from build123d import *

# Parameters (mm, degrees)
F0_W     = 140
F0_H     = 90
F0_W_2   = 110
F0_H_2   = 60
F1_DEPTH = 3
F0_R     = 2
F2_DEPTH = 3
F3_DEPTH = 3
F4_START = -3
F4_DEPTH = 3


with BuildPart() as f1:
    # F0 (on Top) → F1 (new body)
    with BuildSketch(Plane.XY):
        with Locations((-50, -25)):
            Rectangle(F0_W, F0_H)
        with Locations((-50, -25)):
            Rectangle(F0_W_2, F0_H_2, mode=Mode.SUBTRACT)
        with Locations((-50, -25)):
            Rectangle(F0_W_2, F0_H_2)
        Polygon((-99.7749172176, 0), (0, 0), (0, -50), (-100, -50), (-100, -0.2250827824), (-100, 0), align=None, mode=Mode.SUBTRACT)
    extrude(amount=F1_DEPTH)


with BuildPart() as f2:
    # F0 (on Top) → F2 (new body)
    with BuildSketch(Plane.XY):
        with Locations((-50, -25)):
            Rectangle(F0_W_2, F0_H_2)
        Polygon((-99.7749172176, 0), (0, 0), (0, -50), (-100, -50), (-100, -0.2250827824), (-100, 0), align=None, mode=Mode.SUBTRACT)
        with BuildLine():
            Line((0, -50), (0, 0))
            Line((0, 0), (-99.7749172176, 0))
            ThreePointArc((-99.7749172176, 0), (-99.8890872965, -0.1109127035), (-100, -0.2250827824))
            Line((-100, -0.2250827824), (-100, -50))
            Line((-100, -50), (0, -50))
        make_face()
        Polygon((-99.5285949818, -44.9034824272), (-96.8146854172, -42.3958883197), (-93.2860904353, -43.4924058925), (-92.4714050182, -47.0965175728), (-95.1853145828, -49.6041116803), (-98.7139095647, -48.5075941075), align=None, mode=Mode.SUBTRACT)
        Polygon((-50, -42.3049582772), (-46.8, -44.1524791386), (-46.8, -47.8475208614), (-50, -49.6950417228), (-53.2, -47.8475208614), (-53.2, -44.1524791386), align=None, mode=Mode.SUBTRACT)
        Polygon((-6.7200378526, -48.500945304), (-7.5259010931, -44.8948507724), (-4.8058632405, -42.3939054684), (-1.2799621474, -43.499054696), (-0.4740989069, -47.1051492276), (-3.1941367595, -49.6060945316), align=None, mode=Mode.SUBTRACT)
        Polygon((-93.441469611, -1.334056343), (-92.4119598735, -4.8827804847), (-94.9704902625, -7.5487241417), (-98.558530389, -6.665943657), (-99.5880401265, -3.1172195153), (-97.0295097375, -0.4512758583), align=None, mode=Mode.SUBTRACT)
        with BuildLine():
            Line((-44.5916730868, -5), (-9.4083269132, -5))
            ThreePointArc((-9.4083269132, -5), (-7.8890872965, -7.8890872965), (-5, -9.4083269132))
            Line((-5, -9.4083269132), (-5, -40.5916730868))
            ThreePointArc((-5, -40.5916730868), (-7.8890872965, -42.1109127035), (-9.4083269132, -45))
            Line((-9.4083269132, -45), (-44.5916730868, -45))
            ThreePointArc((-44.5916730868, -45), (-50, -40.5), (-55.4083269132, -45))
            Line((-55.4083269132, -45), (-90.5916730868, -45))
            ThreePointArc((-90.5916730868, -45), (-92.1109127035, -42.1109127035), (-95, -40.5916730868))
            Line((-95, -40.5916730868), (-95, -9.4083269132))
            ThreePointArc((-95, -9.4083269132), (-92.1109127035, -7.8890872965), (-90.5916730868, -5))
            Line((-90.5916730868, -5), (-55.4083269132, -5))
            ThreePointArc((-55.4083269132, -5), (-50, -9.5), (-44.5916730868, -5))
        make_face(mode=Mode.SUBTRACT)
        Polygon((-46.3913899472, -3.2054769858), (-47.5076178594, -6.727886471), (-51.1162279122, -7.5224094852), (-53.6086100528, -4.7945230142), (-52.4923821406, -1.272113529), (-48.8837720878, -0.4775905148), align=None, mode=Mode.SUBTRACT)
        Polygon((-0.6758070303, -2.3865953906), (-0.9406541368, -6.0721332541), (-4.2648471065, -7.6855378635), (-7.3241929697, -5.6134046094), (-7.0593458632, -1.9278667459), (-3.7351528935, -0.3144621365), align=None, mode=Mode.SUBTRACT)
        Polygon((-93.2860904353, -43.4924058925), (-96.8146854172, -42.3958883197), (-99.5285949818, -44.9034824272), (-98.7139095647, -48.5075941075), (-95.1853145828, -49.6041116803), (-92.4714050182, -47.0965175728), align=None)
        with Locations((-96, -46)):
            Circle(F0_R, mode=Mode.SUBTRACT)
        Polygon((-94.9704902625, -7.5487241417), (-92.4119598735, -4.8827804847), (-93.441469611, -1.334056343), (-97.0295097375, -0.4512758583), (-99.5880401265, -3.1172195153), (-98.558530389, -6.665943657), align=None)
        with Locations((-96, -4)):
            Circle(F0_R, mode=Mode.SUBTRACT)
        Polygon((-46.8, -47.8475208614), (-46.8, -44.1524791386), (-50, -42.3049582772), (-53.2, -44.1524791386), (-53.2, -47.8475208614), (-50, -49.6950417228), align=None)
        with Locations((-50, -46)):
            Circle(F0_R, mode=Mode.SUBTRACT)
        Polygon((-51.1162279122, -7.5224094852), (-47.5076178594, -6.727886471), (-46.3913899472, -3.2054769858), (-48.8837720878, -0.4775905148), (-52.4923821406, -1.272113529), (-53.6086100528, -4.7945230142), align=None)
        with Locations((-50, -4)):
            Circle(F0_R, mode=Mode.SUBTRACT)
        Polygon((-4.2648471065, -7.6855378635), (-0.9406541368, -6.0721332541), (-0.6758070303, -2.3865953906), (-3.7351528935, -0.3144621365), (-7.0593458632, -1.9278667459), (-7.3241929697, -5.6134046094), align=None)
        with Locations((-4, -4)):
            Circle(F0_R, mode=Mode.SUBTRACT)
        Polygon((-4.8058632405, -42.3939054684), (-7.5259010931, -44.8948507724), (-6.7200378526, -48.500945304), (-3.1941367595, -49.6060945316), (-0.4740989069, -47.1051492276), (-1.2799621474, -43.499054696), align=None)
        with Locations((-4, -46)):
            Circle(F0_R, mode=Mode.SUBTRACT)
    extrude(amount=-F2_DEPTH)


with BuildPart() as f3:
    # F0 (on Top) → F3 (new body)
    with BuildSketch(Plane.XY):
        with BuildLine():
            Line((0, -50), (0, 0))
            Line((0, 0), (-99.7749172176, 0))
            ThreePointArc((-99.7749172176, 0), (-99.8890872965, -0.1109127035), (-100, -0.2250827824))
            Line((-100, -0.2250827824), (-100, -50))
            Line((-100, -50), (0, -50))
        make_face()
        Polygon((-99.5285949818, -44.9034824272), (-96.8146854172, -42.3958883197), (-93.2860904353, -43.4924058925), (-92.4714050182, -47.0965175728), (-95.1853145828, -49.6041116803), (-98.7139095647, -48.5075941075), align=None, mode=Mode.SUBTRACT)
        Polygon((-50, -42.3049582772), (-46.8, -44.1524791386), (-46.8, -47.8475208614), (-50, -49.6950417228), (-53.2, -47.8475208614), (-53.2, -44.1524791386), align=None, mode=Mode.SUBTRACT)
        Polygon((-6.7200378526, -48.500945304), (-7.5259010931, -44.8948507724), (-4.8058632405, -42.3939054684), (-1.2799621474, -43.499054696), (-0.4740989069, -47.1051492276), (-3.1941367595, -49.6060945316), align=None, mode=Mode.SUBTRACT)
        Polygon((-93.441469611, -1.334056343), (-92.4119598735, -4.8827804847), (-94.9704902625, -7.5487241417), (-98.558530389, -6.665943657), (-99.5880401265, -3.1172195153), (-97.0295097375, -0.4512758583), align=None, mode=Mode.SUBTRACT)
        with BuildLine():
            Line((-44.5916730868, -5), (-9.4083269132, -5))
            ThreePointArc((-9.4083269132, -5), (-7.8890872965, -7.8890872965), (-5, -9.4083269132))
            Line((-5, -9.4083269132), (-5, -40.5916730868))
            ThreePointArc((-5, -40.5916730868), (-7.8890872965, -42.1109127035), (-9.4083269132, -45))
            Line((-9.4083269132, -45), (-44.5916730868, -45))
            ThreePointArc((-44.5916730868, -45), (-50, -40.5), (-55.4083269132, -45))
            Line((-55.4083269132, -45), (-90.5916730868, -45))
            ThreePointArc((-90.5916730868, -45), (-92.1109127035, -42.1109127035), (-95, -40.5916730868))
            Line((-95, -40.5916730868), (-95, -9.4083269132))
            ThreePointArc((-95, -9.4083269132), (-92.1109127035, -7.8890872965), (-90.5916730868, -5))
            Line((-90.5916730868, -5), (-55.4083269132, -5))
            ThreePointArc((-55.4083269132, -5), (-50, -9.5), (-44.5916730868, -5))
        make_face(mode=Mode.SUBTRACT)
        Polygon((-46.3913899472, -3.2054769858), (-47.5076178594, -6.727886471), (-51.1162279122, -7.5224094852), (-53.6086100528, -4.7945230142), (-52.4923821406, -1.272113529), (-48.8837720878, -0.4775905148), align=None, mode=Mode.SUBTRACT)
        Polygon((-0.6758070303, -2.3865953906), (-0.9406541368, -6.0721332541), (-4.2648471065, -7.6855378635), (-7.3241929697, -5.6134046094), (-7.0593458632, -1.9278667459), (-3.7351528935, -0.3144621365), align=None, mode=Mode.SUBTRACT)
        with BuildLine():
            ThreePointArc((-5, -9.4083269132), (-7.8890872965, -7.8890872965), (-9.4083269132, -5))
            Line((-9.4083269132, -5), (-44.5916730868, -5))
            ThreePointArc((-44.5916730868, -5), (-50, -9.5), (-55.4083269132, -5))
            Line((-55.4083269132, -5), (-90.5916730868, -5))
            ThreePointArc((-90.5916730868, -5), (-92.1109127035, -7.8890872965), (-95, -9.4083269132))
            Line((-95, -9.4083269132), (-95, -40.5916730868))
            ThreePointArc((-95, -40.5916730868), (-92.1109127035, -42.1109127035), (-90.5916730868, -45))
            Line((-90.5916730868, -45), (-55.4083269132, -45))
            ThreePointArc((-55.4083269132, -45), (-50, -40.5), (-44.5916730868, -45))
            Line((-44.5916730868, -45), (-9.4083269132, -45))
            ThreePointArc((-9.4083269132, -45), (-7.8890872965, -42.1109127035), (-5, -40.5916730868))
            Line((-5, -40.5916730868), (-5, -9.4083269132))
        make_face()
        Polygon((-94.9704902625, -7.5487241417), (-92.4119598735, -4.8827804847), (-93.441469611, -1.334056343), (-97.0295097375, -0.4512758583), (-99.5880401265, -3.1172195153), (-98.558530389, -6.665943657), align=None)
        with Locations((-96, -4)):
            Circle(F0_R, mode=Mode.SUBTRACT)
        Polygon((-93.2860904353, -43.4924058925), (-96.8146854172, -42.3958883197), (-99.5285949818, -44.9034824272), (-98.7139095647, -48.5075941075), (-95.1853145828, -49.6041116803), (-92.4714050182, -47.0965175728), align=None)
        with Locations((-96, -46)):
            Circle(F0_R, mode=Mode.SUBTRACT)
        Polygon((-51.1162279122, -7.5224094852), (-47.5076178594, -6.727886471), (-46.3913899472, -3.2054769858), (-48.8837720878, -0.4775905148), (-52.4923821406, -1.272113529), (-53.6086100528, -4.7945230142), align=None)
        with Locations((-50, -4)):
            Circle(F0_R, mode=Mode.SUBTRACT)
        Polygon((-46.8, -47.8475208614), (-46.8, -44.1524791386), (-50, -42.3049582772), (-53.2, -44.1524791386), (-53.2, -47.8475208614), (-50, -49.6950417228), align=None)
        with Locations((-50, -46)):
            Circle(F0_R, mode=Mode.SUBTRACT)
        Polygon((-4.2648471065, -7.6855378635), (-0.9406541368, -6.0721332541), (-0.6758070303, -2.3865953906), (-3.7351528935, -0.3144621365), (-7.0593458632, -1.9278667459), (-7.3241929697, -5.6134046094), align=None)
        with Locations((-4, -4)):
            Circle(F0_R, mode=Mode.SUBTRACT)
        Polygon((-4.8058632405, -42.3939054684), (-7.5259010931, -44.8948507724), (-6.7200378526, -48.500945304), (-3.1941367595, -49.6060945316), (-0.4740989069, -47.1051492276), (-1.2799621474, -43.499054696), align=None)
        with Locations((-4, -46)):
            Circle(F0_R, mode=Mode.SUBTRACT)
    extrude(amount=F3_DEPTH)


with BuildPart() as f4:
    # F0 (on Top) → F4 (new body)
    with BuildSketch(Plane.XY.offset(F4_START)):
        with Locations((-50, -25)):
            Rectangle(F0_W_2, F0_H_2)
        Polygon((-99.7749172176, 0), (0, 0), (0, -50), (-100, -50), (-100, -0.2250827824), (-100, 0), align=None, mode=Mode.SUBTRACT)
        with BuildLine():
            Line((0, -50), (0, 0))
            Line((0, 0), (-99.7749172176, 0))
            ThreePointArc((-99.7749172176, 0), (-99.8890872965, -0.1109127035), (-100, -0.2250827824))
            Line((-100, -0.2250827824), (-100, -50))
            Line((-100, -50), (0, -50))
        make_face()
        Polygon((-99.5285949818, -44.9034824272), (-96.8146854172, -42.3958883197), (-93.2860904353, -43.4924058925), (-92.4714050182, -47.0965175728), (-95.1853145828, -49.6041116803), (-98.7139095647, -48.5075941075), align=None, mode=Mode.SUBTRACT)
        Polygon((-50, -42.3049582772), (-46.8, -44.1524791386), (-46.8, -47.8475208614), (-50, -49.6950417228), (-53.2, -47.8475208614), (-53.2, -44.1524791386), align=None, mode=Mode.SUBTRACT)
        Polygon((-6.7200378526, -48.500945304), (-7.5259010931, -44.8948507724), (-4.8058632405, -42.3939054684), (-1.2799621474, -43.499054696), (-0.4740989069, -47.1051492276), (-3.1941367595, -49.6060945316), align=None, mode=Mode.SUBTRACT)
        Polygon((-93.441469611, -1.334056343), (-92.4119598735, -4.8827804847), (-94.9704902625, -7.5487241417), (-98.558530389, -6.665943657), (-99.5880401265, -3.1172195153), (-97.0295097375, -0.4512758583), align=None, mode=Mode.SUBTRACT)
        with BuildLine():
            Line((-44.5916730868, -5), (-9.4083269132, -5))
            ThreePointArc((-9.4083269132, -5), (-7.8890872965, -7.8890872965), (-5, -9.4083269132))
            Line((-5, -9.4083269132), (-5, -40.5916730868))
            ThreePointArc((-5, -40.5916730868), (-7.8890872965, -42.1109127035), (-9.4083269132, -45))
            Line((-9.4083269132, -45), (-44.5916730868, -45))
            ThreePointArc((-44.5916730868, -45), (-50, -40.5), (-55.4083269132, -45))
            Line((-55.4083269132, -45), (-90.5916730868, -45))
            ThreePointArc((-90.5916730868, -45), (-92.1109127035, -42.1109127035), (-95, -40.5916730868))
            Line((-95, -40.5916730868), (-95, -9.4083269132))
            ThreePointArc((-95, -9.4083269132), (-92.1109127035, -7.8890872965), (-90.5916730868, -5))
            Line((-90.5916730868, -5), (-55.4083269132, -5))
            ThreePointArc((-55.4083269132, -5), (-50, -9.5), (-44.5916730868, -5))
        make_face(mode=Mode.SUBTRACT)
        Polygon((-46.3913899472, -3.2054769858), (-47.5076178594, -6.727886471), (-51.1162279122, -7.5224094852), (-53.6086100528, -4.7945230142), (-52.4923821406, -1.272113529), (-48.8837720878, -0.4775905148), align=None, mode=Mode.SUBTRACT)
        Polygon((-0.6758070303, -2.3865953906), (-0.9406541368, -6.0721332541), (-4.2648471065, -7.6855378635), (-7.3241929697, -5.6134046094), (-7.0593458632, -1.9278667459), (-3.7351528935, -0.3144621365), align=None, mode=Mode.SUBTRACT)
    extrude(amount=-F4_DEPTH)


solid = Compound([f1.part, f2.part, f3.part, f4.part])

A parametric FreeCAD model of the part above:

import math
import FreeCAD as App
import Part
import Sketcher
Q = App.Units.Quantity

doc = App.newDocument("Part")
body = doc.addObject("PartDesign::Body", "Body")

# Sketch on XY plane
sketch1 = body.newObject("Sketcher::SketchObject", "Sketch")
sketch1.AttachmentSupport = (doc.getObject("XY_Plane"), [""])
sketch1.MapMode = "FlatFace"
sketch1.addGeometry(Part.LineSegment(App.Vector(-120, 20, 0), App.Vector(-120, -70, 0)), False)
sketch1.addGeometry(Part.LineSegment(App.Vector(-120, -70, 0), App.Vector(20, -70, 0)), False)
sketch1.addGeometry(Part.LineSegment(App.Vector(20, -70, 0), App.Vector(20, 20, 0)), False)
sketch1.addGeometry(Part.LineSegment(App.Vector(20, 20, 0), App.Vector(-120, 20, 0)), False)
sketch1.addGeometry(Part.LineSegment(App.Vector(-100, 0, 0), App.Vector(0, 0, 0)), False)
sketch1.addGeometry(Part.LineSegment(App.Vector(0, 0, 0), App.Vector(0, -50, 0)), False)
sketch1.addGeometry(Part.LineSegment(App.Vector(0, -50, 0), App.Vector(-100, -50, 0)), False)
sketch1.addGeometry(Part.LineSegment(App.Vector(-100, -50, 0), App.Vector(-100, 0, 0)), False)
sketch1.addConstraint(Sketcher.Constraint("Coincident", 0, 2, 1, 1))
sketch1.addConstraint(Sketcher.Constraint("Coincident", 1, 2, 2, 1))
sketch1.addConstraint(Sketcher.Constraint("Coincident", 2, 2, 3, 1))
sketch1.addConstraint(Sketcher.Constraint("Coincident", 3, 2, 0, 1))
sketch1.addConstraint(Sketcher.Constraint("Coincident", 4, 2, 5, 1))
sketch1.addConstraint(Sketcher.Constraint("Coincident", 5, 2, 6, 1))
sketch1.addConstraint(Sketcher.Constraint("Coincident", 6, 2, 7, 1))
sketch1.addConstraint(Sketcher.Constraint("Coincident", 7, 2, 4, 1))
sketch1.addConstraint(Sketcher.Constraint("Vertical", 0))
sketch1.addConstraint(Sketcher.Constraint("Horizontal", 1))
sketch1.addConstraint(Sketcher.Constraint("Vertical", 2))
sketch1.addConstraint(Sketcher.Constraint("Horizontal", 3))
sketch1.addConstraint(Sketcher.Constraint("Horizontal", 4))
sketch1.addConstraint(Sketcher.Constraint("Vertical", 5))
sketch1.addConstraint(Sketcher.Constraint("Horizontal", 6))
sketch1.addConstraint(Sketcher.Constraint("Vertical", 7))
sketch1.addConstraint(Sketcher.Constraint("Coincident", 4, 2, -1, 1))
sketch1.addConstraint(Sketcher.Constraint("DistanceX", 1, 1, 1, 2, 140.0))
sketch1.addConstraint(Sketcher.Constraint("DistanceX", 4, 1, 4, 2, 100.0))
sketch1.addConstraint(Sketcher.Constraint("DistanceY", 0, 2, 0, 1, 90.0))
sketch1.addConstraint(Sketcher.Constraint("DistanceY", 5, 2, 5, 1, 50.0))
sketch1.addConstraint(Sketcher.Constraint("DistanceX", 0, 2, -1, 1, 120.0))
sketch1.addConstraint(Sketcher.Constraint("DistanceY", 0, 2, -1, 1, 70.0))
pad1 = body.newObject("PartDesign::Pad", "Pad")
pad1.Profile = sketch1
pad1.Length = 3
body2 = doc.addObject("PartDesign::Body", "Body001")

# Sketch on XY plane
sketch2 = body2.newObject("Sketcher::SketchObject", "Sketch001")
sketch2.AttachmentSupport = (doc.getObject("XY_Plane001"), [""])
sketch2.MapMode = "FlatFace"
sketch2.addGeometry(Part.LineSegment(App.Vector(-105, 5, 0), App.Vector(-105, -55, 0)), False)
sketch2.addGeometry(Part.LineSegment(App.Vector(-105, -55, 0), App.Vector(5, -55, 0)), False)
sketch2.addGeometry(Part.LineSegment(App.Vector(5, -55, 0), App.Vector(5, 5, 0)), False)
sketch2.addGeometry(Part.LineSegment(App.Vector(5, 5, 0), App.Vector(-105, 5, 0)), False)
sketch2.addGeometry(Part.Circle(App.Vector(-96, -46, 0), App.Vector(0, 0, 1), 2), False)
sketch2.addGeometry(Part.Circle(App.Vector(-50, -46, 0), App.Vector(0, 0, 1), 2), False)
sketch2.addGeometry(Part.Circle(App.Vector(-4, -46, 0), App.Vector(0, 0, 1), 2), False)
sketch2.addGeometry(Part.ArcOfCircle(Part.Circle(App.Vector(-50, -4, 0), App.Vector(0, 0, 1), 5.5), math.radians(-170), math.radians(-10)), False)
sketch2.addGeometry(Part.LineSegment(App.Vector(-44.59, -5, 0), App.Vector(-9.41, -5, 0)), False)
sketch2.addGeometry(Part.ArcOfCircle(Part.Circle(App.Vector(-4, -4, 0), App.Vector(0, 0, 1), 5.5), math.radians(-170), math.radians(-100)), False)
sketch2.addGeometry(Part.LineSegment(App.Vector(-5, -9.41, 0), App.Vector(-5, -40.59, 0)), False)
sketch2.addGeometry(Part.ArcOfCircle(Part.Circle(App.Vector(-4, -46, 0), App.Vector(0, 0, 1), 5.5), math.radians(100), math.radians(170)), False)
sketch2.addGeometry(Part.LineSegment(App.Vector(-9.41, -45, 0), App.Vector(-44.59, -45, 0)), False)
sketch2.addGeometry(Part.ArcOfCircle(Part.Circle(App.Vector(-50, -46, 0), App.Vector(0, 0, 1), 5.5), math.radians(10), math.radians(170)), False)
sketch2.addGeometry(Part.LineSegment(App.Vector(-55.41, -45, 0), App.Vector(-90.59, -45, 0)), False)
sketch2.addGeometry(Part.ArcOfCircle(Part.Circle(App.Vector(-96, -46, 0), App.Vector(0, 0, 1), 5.5), math.radians(10), math.radians(80)), False)
sketch2.addGeometry(Part.LineSegment(App.Vector(-95, -40.59, 0), App.Vector(-95, -9.41, 0)), False)
sketch2.addGeometry(Part.ArcOfCircle(Part.Circle(App.Vector(-96, -4, 0), App.Vector(0, 0, 1), 5.5), math.radians(-80), math.radians(-10)), False)
sketch2.addGeometry(Part.LineSegment(App.Vector(-90.59, -5, 0), App.Vector(-55.41, -5, 0)), False)
sketch2.addGeometry(Part.Circle(App.Vector(-96, -4, 0), App.Vector(0, 0, 1), 2), False)
sketch2.addGeometry(Part.LineSegment(App.Vector(-100, 0, 0), App.Vector(-99.77, 0, 0)), False)
sketch2.addGeometry(Part.ArcOfCircle(Part.Circle(App.Vector(-96, -4, 0), App.Vector(0, 0, 1), 5.5), math.radians(133.34), math.radians(136.66)), False)
sketch2.addGeometry(Part.LineSegment(App.Vector(-100, -0.23, 0), App.Vector(-100, 0, 0)), False)
sketch2.addGeometry(Part.Circle(App.Vector(-50, -4, 0), App.Vector(0, 0, 1), 2), False)
sketch2.addGeometry(Part.Circle(App.Vector(-4, -4, 0), App.Vector(0, 0, 1), 2), False)
sketch2.addConstraint(Sketcher.Constraint("Coincident", 0, 2, 1, 1))
sketch2.addConstraint(Sketcher.Constraint("Coincident", 1, 2, 2, 1))
sketch2.addConstraint(Sketcher.Constraint("Coincident", 2, 2, 3, 1))
sketch2.addConstraint(Sketcher.Constraint("Coincident", 3, 2, 0, 1))
sketch2.addConstraint(Sketcher.Constraint("Coincident", 7, 2, 8, 1))
sketch2.addConstraint(Sketcher.Constraint("Coincident", 8, 2, 9, 1))
sketch2.addConstraint(Sketcher.Constraint("Coincident", 9, 2, 10, 1))
sketch2.addConstraint(Sketcher.Constraint("Coincident", 10, 2, 11, 1))
sketch2.addConstraint(Sketcher.Constraint("Coincident", 11, 2, 12, 1))
sketch2.addConstraint(Sketcher.Constraint("Coincident", 12, 2, 13, 1))
sketch2.addConstraint(Sketcher.Constraint("Coincident", 13, 2, 14, 1))
sketch2.addConstraint(Sketcher.Constraint("Coincident", 14, 2, 15, 1))
sketch2.addConstraint(Sketcher.Constraint("Coincident", 15, 2, 16, 1))
sketch2.addConstraint(Sketcher.Constraint("Coincident", 16, 2, 17, 1))
sketch2.addConstraint(Sketcher.Constraint("Coincident", 17, 2, 18, 1))
sketch2.addConstraint(Sketcher.Constraint("Coincident", 18, 2, 7, 1))
sketch2.addConstraint(Sketcher.Constraint("Coincident", 20, 2, 21, 1))
sketch2.addConstraint(Sketcher.Constraint("Coincident", 21, 2, 22, 1))
sketch2.addConstraint(Sketcher.Constraint("Coincident", 22, 2, 20, 1))
sketch2.addConstraint(Sketcher.Constraint("Vertical", 0))
sketch2.addConstraint(Sketcher.Constraint("Horizontal", 1))
sketch2.addConstraint(Sketcher.Constraint("Vertical", 2))
sketch2.addConstraint(Sketcher.Constraint("Horizontal", 3))
sketch2.addConstraint(Sketcher.Constraint("Horizontal", 8))
sketch2.addConstraint(Sketcher.Constraint("Vertical", 10))
sketch2.addConstraint(Sketcher.Constraint("Horizontal", 12))
sketch2.addConstraint(Sketcher.Constraint("Horizontal", 14))
sketch2.addConstraint(Sketcher.Constraint("Vertical", 16))
sketch2.addConstraint(Sketcher.Constraint("Horizontal", 18))
sketch2.addConstraint(Sketcher.Constraint("Horizontal", 20))
sketch2.addConstraint(Sketcher.Constraint("Vertical", 22))
sketch2.addConstraint(Sketcher.Constraint("Coincident", 11, 3, 6, 3))
sketch2.addConstraint(Sketcher.Constraint("Coincident", 13, 3, 5, 3))
sketch2.addConstraint(Sketcher.Constraint("Coincident", 15, 3, 4, 3))
sketch2.addConstraint(Sketcher.Constraint("Coincident", 19, 3, 17, 3))
sketch2.addConstraint(Sketcher.Constraint("Coincident", 21, 3, 17, 3))
sketch2.addConstraint(Sketcher.Constraint("Coincident", 23, 3, 7, 3))
sketch2.addConstraint(Sketcher.Constraint("Coincident", 24, 3, 9, 3))
sketch2.addConstraint(Sketcher.Constraint("Equal", 4, 5))
sketch2.addConstraint(Sketcher.Constraint("Equal", 5, 6))
sketch2.addConstraint(Sketcher.Constraint("Equal", 7, 9))
sketch2.addConstraint(Sketcher.Constraint("Equal", 9, 11))
sketch2.addConstraint(Sketcher.Constraint("Equal", 11, 13))
sketch2.addConstraint(Sketcher.Constraint("Equal", 13, 15))
sketch2.addConstraint(Sketcher.Constraint("Equal", 15, 17))
sketch2.addConstraint(Sketcher.Constraint("Equal", 6, 19))
sketch2.addConstraint(Sketcher.Constraint("Equal", 17, 21))
sketch2.addConstraint(Sketcher.Constraint("Equal", 19, 23))
sketch2.addConstraint(Sketcher.Constraint("Equal", 23, 24))
sketch2.addConstraint(Sketcher.Constraint("PointOnObject", 20, 2, -1))
sketch2.addConstraint(Sketcher.Constraint("Horizontal", 4, 3, 5, 3))
sketch2.addConstraint(Sketcher.Constraint("Horizontal", 5, 3, 6, 3))
sketch2.addConstraint(Sketcher.Constraint("Horizontal", 7, 3, 9, 3))
sketch2.addConstraint(Sketcher.Constraint("Horizontal", 9, 3, 17, 3))
sketch2.addConstraint(Sketcher.Constraint("Horizontal", 12, 2, 13, 2))
sketch2.addConstraint(Sketcher.Constraint("Horizontal", 10, 2, 15, 2))
sketch2.addConstraint(Sketcher.Constraint("Horizontal", 9, 2, 16, 2))
sketch2.addConstraint(Sketcher.Constraint("Horizontal", 8, 2, 17, 2))
sketch2.addConstraint(Sketcher.Constraint("Vertical", 5, 3, 7, 3))
sketch2.addConstraint(Sketcher.Constraint("Vertical", 6, 3, 9, 3))
sketch2.addConstraint(Sketcher.Constraint("Vertical", 8, 2, 11, 2))
sketch2.addConstraint(Sketcher.Constraint("Equal", 12, 14))
sketch2.addConstraint(Sketcher.Constraint("Equal", 20, 22))
sketch2.addConstraint(Sketcher.Constraint("Diameter", 4, 4.0))
sketch2.addConstraint(Sketcher.Constraint("Radius", 7, 5.5))
sketch2.addConstraint(Sketcher.Constraint("DistanceX", 1, 1, 1, 2, 110.0))
sketch2.addConstraint(Sketcher.Constraint("DistanceY", 0, 2, 0, 1, 60.0))
sketch2.addConstraint(Sketcher.Constraint("DistanceX", 4, 3, -1, 1, 96.0))
sketch2.addConstraint(Sketcher.Constraint("DistanceY", 4, 3, -1, 1, 46.0))
sketch2.addConstraint(Sketcher.Constraint("DistanceX", 5, 3, -1, 1, 50.0))
sketch2.addConstraint(Sketcher.Constraint("DistanceY", 7, 3, -1, 1, 4.0))
sketch2.addConstraint(Sketcher.Constraint("DistanceX", 0, 2, -1, 1, 105.0))
sketch2.addConstraint(Sketcher.Constraint("DistanceY", 0, 2, -1, 1, 55.0))
sketch2.addConstraint(Sketcher.Constraint("DistanceY", 7, 2, -1, 1, 5.0))
sketch2.addConstraint(Sketcher.Constraint("DistanceX", 9, 2, -1, 1, 5.0))
pad2 = body2.newObject("PartDesign::Pad", "Pad001")
pad2.Profile = sketch2
pad2.Length = 3
pad2.Reversed = True
body3 = doc.addObject("PartDesign::Body", "Body002")

# Sketch on XY plane
sketch3 = body3.newObject("Sketcher::SketchObject", "Sketch002")
sketch3.AttachmentSupport = (doc.getObject("XY_Plane002"), [""])
sketch3.MapMode = "FlatFace"
sketch3.addGeometry(Part.LineSegment(App.Vector(0, -50, 0), App.Vector(0, 0, 0)), False)
sketch3.addGeometry(Part.LineSegment(App.Vector(0, 0, 0), App.Vector(-99.77, 0, 0)), False)
sketch3.addGeometry(Part.ArcOfCircle(Part.Circle(App.Vector(-96, -4, 0), App.Vector(0, 0, 1), 5.5), math.radians(133.34), math.radians(136.66)), False)
sketch3.addGeometry(Part.LineSegment(App.Vector(-100, -0.23, 0), App.Vector(-100, -50, 0)), False)
sketch3.addGeometry(Part.LineSegment(App.Vector(-100, -50, 0), App.Vector(0, -50, 0)), False)
sketch3.addGeometry(Part.Circle(App.Vector(-96, -46, 0), App.Vector(0, 0, 1), 2), False)
sketch3.addGeometry(Part.Circle(App.Vector(-50, -46, 0), App.Vector(0, 0, 1), 2), False)
sketch3.addGeometry(Part.Circle(App.Vector(-4, -46, 0), App.Vector(0, 0, 1), 2), False)
sketch3.addGeometry(Part.Circle(App.Vector(-96, -4, 0), App.Vector(0, 0, 1), 2), False)
sketch3.addGeometry(Part.Circle(App.Vector(-50, -4, 0), App.Vector(0, 0, 1), 2), False)
sketch3.addGeometry(Part.Circle(App.Vector(-4, -4, 0), App.Vector(0, 0, 1), 2), False)
sketch3.addConstraint(Sketcher.Constraint("Coincident", 0, 2, 1, 1))
sketch3.addConstraint(Sketcher.Constraint("Coincident", 1, 2, 2, 1))
sketch3.addConstraint(Sketcher.Constraint("Coincident", 2, 2, 3, 1))
sketch3.addConstraint(Sketcher.Constraint("Coincident", 3, 2, 4, 1))
sketch3.addConstraint(Sketcher.Constraint("Coincident", 4, 2, 0, 1))
sketch3.addConstraint(Sketcher.Constraint("Vertical", 0))
sketch3.addConstraint(Sketcher.Constraint("Horizontal", 1))
sketch3.addConstraint(Sketcher.Constraint("Vertical", 3))
sketch3.addConstraint(Sketcher.Constraint("Horizontal", 4))
sketch3.addConstraint(Sketcher.Constraint("Coincident", 0, 2, -1, 1))
sketch3.addConstraint(Sketcher.Constraint("Coincident", 8, 3, 2, 3))
sketch3.addConstraint(Sketcher.Constraint("Equal", 5, 6))
sketch3.addConstraint(Sketcher.Constraint("Equal", 6, 7))
sketch3.addConstraint(Sketcher.Constraint("Equal", 7, 8))
sketch3.addConstraint(Sketcher.Constraint("Equal", 8, 9))
sketch3.addConstraint(Sketcher.Constraint("Equal", 9, 10))
sketch3.addConstraint(Sketcher.Constraint("Horizontal", 5, 3, 6, 3))
sketch3.addConstraint(Sketcher.Constraint("Horizontal", 6, 3, 7, 3))
sketch3.addConstraint(Sketcher.Constraint("Horizontal", 8, 3, 9, 3))
sketch3.addConstraint(Sketcher.Constraint("Horizontal", 9, 3, 10, 3))
sketch3.addConstraint(Sketcher.Constraint("Vertical", 2, 3, 5, 3))
sketch3.addConstraint(Sketcher.Constraint("Vertical", 6, 3, 9, 3))
sketch3.addConstraint(Sketcher.Constraint("Vertical", 7, 3, 10, 3))
sketch3.addConstraint(Sketcher.Constraint("Diameter", 5, 4.0))
sketch3.addConstraint(Sketcher.Constraint("Radius", 2, 5.5))
sketch3.addConstraint(Sketcher.Constraint("DistanceX", 4, 1, 4, 2, 100.0))
sketch3.addConstraint(Sketcher.Constraint("DistanceY", 0, 1, 0, 2, 50.0))
sketch3.addConstraint(Sketcher.Constraint("DistanceX", 2, 3, -1, 1, 96.0))
sketch3.addConstraint(Sketcher.Constraint("DistanceY", 2, 3, -1, 1, 4.0))
sketch3.addConstraint(Sketcher.Constraint("DistanceY", 5, 3, -1, 1, 46.0))
sketch3.addConstraint(Sketcher.Constraint("DistanceX", 6, 3, -1, 1, 50.0))
sketch3.addConstraint(Sketcher.Constraint("DistanceX", 7, 3, -1, 1, 4.0))
pad3 = body3.newObject("PartDesign::Pad", "Pad002")
pad3.Profile = sketch3
pad3.Length = 3
body4 = doc.addObject("PartDesign::Body", "Body003")

# Sketch on XY plane
sketch4 = body4.newObject("Sketcher::SketchObject", "Sketch003")
sketch4.AttachmentSupport = (doc.getObject("XY_Plane003"), [""])
sketch4.MapMode = "FlatFace"
sketch4.AttachmentOffset = App.Placement(App.Vector(0, 0, -3), App.Rotation())
sketch4.addGeometry(Part.LineSegment(App.Vector(-105, 5, 0), App.Vector(-105, -55, 0)), False)
sketch4.addGeometry(Part.LineSegment(App.Vector(-105, -55, 0), App.Vector(5, -55, 0)), False)
sketch4.addGeometry(Part.LineSegment(App.Vector(5, -55, 0), App.Vector(5, 5, 0)), False)
sketch4.addGeometry(Part.LineSegment(App.Vector(5, 5, 0), App.Vector(-105, 5, 0)), False)
sketch4.addGeometry(Part.LineSegment(App.Vector(-98.71, -48.51, 0), App.Vector(-99.53, -44.9, 0)), False)
sketch4.addGeometry(Part.LineSegment(App.Vector(-99.53, -44.9, 0), App.Vector(-96.81, -42.4, 0)), False)
sketch4.addGeometry(Part.LineSegment(App.Vector(-96.81, -42.4, 0), App.Vector(-93.29, -43.49, 0)), False)
sketch4.addGeometry(Part.LineSegment(App.Vector(-93.29, -43.49, 0), App.Vector(-92.47, -47.1, 0)), False)
sketch4.addGeometry(Part.LineSegment(App.Vector(-92.47, -47.1, 0), App.Vector(-95.19, -49.6, 0)), False)
sketch4.addGeometry(Part.LineSegment(App.Vector(-95.19, -49.6, 0), App.Vector(-98.71, -48.51, 0)), False)
sketch4.addGeometry(Part.LineSegment(App.Vector(-53.2, -44.15, 0), App.Vector(-50, -42.3, 0)), False)
sketch4.addGeometry(Part.LineSegment(App.Vector(-50, -42.3, 0), App.Vector(-46.8, -44.15, 0)), False)
sketch4.addGeometry(Part.LineSegment(App.Vector(-46.8, -44.15, 0), App.Vector(-46.8, -47.85, 0)), False)
sketch4.addGeometry(Part.LineSegment(App.Vector(-46.8, -47.85, 0), App.Vector(-50, -49.7, 0)), False)
sketch4.addGeometry(Part.LineSegment(App.Vector(-50, -49.7, 0), App.Vector(-53.2, -47.85, 0)), False)
sketch4.addGeometry(Part.LineSegment(App.Vector(-53.2, -47.85, 0), App.Vector(-53.2, -44.15, 0)), False)
sketch4.addGeometry(Part.LineSegment(App.Vector(-3.19, -49.61, 0), App.Vector(-6.72, -48.5, 0)), False)
sketch4.addGeometry(Part.LineSegment(App.Vector(-6.72, -48.5, 0), App.Vector(-7.53, -44.89, 0)), False)
sketch4.addGeometry(Part.LineSegment(App.Vector(-7.53, -44.89, 0), App.Vector(-4.81, -42.39, 0)), False)
sketch4.addGeometry(Part.LineSegment(App.Vector(-4.81, -42.39, 0), App.Vector(-1.28, -43.5, 0)), False)
sketch4.addGeometry(Part.LineSegment(App.Vector(-1.28, -43.5, 0), App.Vector(-0.47, -47.11, 0)), False)
sketch4.addGeometry(Part.LineSegment(App.Vector(-0.47, -47.11, 0), App.Vector(-3.19, -49.61, 0)), False)
sketch4.addGeometry(Part.ArcOfCircle(Part.Circle(App.Vector(-50, -4, 0), App.Vector(0, 0, 1), 5.5), math.radians(-170), math.radians(-10)), False)
sketch4.addGeometry(Part.LineSegment(App.Vector(-44.59, -5, 0), App.Vector(-9.41, -5, 0)), False)
sketch4.addGeometry(Part.ArcOfCircle(Part.Circle(App.Vector(-4, -4, 0), App.Vector(0, 0, 1), 5.5), math.radians(-170), math.radians(-100)), False)
sketch4.addGeometry(Part.LineSegment(App.Vector(-5, -9.41, 0), App.Vector(-5, -40.59, 0)), False)
sketch4.addGeometry(Part.ArcOfCircle(Part.Circle(App.Vector(-4, -46, 0), App.Vector(0, 0, 1), 5.5), math.radians(100), math.radians(170)), False)
sketch4.addGeometry(Part.LineSegment(App.Vector(-9.41, -45, 0), App.Vector(-44.59, -45, 0)), False)
sketch4.addGeometry(Part.ArcOfCircle(Part.Circle(App.Vector(-50, -46, 0), App.Vector(0, 0, 1), 5.5), math.radians(10), math.radians(170)), False)
sketch4.addGeometry(Part.LineSegment(App.Vector(-55.41, -45, 0), App.Vector(-90.59, -45, 0)), False)
sketch4.addGeometry(Part.ArcOfCircle(Part.Circle(App.Vector(-96, -46, 0), App.Vector(0, 0, 1), 5.5), math.radians(10), math.radians(80)), False)
sketch4.addGeometry(Part.LineSegment(App.Vector(-95, -40.59, 0), App.Vector(-95, -9.41, 0)), False)
sketch4.addGeometry(Part.ArcOfCircle(Part.Circle(App.Vector(-96, -4, 0), App.Vector(0, 0, 1), 5.5), math.radians(-80), math.radians(-10)), False)
sketch4.addGeometry(Part.LineSegment(App.Vector(-90.59, -5, 0), App.Vector(-55.41, -5, 0)), False)
sketch4.addGeometry(Part.LineSegment(App.Vector(-97.03, -0.45, 0), App.Vector(-93.44, -1.33, 0)), False)
sketch4.addGeometry(Part.LineSegment(App.Vector(-93.44, -1.33, 0), App.Vector(-92.41, -4.88, 0)), False)
sketch4.addGeometry(Part.LineSegment(App.Vector(-92.41, -4.88, 0), App.Vector(-94.97, -7.55, 0)), False)
sketch4.addGeometry(Part.LineSegment(App.Vector(-94.97, -7.55, 0), App.Vector(-98.56, -6.67, 0)), False)
sketch4.addGeometry(Part.LineSegment(App.Vector(-98.56, -6.67, 0), App.Vector(-99.59, -3.12, 0)), False)
sketch4.addGeometry(Part.LineSegment(App.Vector(-99.59, -3.12, 0), App.Vector(-97.03, -0.45, 0)), False)
sketch4.addGeometry(Part.LineSegment(App.Vector(-100, 0, 0), App.Vector(-99.77, 0, 0)), False)
sketch4.addGeometry(Part.ArcOfCircle(Part.Circle(App.Vector(-96, -4, 0), App.Vector(0, 0, 1), 5.5), math.radians(133.34), math.radians(136.66)), False)
sketch4.addGeometry(Part.LineSegment(App.Vector(-100, -0.23, 0), App.Vector(-100, 0, 0)), False)
sketch4.addGeometry(Part.LineSegment(App.Vector(-48.88, -0.48, 0), App.Vector(-46.39, -3.21, 0)), False)
sketch4.addGeometry(Part.LineSegment(App.Vector(-46.39, -3.21, 0), App.Vector(-47.51, -6.73, 0)), False)
sketch4.addGeometry(Part.LineSegment(App.Vector(-47.51, -6.73, 0), App.Vector(-51.12, -7.52, 0)), False)
sketch4.addGeometry(Part.LineSegment(App.Vector(-51.12, -7.52, 0), App.Vector(-53.61, -4.79, 0)), False)
sketch4.addGeometry(Part.LineSegment(App.Vector(-53.61, -4.79, 0), App.Vector(-52.49, -1.27, 0)), False)
sketch4.addGeometry(Part.LineSegment(App.Vector(-52.49, -1.27, 0), App.Vector(-48.88, -0.48, 0)), False)
sketch4.addGeometry(Part.LineSegment(App.Vector(-3.74, -0.31, 0), App.Vector(-0.68, -2.39, 0)), False)
sketch4.addGeometry(Part.LineSegment(App.Vector(-0.68, -2.39, 0), App.Vector(-0.94, -6.07, 0)), False)
sketch4.addGeometry(Part.LineSegment(App.Vector(-0.94, -6.07, 0), App.Vector(-4.26, -7.69, 0)), False)
sketch4.addGeometry(Part.LineSegment(App.Vector(-4.26, -7.69, 0), App.Vector(-7.32, -5.61, 0)), False)
sketch4.addGeometry(Part.LineSegment(App.Vector(-7.32, -5.61, 0), App.Vector(-7.06, -1.93, 0)), False)
sketch4.addGeometry(Part.LineSegment(App.Vector(-7.06, -1.93, 0), App.Vector(-3.74, -0.31, 0)), False)
sketch4.addConstraint(Sketcher.Constraint("Coincident", 0, 2, 1, 1))
sketch4.addConstraint(Sketcher.Constraint("Coincident", 1, 2, 2, 1))
sketch4.addConstraint(Sketcher.Constraint("Coincident", 2, 2, 3, 1))
sketch4.addConstraint(Sketcher.Constraint("Coincident", 3, 2, 0, 1))
sketch4.addConstraint(Sketcher.Constraint("Coincident", 4, 2, 5, 1))
sketch4.addConstraint(Sketcher.Constraint("Coincident", 5, 2, 6, 1))
sketch4.addConstraint(Sketcher.Constraint("Coincident", 6, 2, 7, 1))
sketch4.addConstraint(Sketcher.Constraint("Coincident", 7, 2, 8, 1))
sketch4.addConstraint(Sketcher.Constraint("Coincident", 8, 2, 9, 1))
sketch4.addConstraint(Sketcher.Constraint("Coincident", 9, 2, 4, 1))
sketch4.addConstraint(Sketcher.Constraint("Coincident", 10, 2, 11, 1))
sketch4.addConstraint(Sketcher.Constraint("Coincident", 11, 2, 12, 1))
sketch4.addConstraint(Sketcher.Constraint("Coincident", 12, 2, 13, 1))
sketch4.addConstraint(Sketcher.Constraint("Coincident", 13, 2, 14, 1))
sketch4.addConstraint(Sketcher.Constraint("Coincident", 14, 2, 15, 1))
sketch4.addConstraint(Sketcher.Constraint("Coincident", 15, 2, 10, 1))
sketch4.addConstraint(Sketcher.Constraint("Coincident", 16, 2, 17, 1))
sketch4.addConstraint(Sketcher.Constraint("Coincident", 17, 2, 18, 1))
sketch4.addConstraint(Sketcher.Constraint("Coincident", 18, 2, 19, 1))
sketch4.addConstraint(Sketcher.Constraint("Coincident", 19, 2, 20, 1))
sketch4.addConstraint(Sketcher.Constraint("Coincident", 20, 2, 21, 1))
sketch4.addConstraint(Sketcher.Constraint("Coincident", 21, 2, 16, 1))
sketch4.addConstraint(Sketcher.Constraint("Coincident", 22, 2, 23, 1))
sketch4.addConstraint(Sketcher.Constraint("Coincident", 23, 2, 24, 1))
sketch4.addConstraint(Sketcher.Constraint("Coincident", 24, 2, 25, 1))
sketch4.addConstraint(Sketcher.Constraint("Coincident", 25, 2, 26, 1))
sketch4.addConstraint(Sketcher.Constraint("Coincident", 26, 2, 27, 1))
sketch4.addConstraint(Sketcher.Constraint("Coincident", 27, 2, 28, 1))
sketch4.addConstraint(Sketcher.Constraint("Coincident", 28, 2, 29, 1))
sketch4.addConstraint(Sketcher.Constraint("Coincident", 29, 2, 30, 1))
sketch4.addConstraint(Sketcher.Constraint("Coincident", 30, 2, 31, 1))
sketch4.addConstraint(Sketcher.Constraint("Coincident", 31, 2, 32, 1))
sketch4.addConstraint(Sketcher.Constraint("Coincident", 32, 2, 33, 1))
sketch4.addConstraint(Sketcher.Constraint("Coincident", 33, 2, 22, 1))
sketch4.addConstraint(Sketcher.Constraint("Coincident", 34, 2, 35, 1))
sketch4.addConstraint(Sketcher.Constraint("Coincident", 35, 2, 36, 1))
sketch4.addConstraint(Sketcher.Constraint("Coincident", 36, 2, 37, 1))
sketch4.addConstraint(Sketcher.Constraint("Coincident", 37, 2, 38, 1))
sketch4.addConstraint(Sketcher.Constraint("Coincident", 38, 2, 39, 1))
sketch4.addConstraint(Sketcher.Constraint("Coincident", 39, 2, 34, 1))
sketch4.addConstraint(Sketcher.Constraint("Coincident", 40, 2, 41, 1))
sketch4.addConstraint(Sketcher.Constraint("Coincident", 41, 2, 42, 1))
sketch4.addConstraint(Sketcher.Constraint("Coincident", 42, 2, 40, 1))
sketch4.addConstraint(Sketcher.Constraint("Coincident", 43, 2, 44, 1))
sketch4.addConstraint(Sketcher.Constraint("Coincident", 44, 2, 45, 1))
sketch4.addConstraint(Sketcher.Constraint("Coincident", 45, 2, 46, 1))
sketch4.addConstraint(Sketcher.Constraint("Coincident", 46, 2, 47, 1))
sketch4.addConstraint(Sketcher.Constraint("Coincident", 47, 2, 48, 1))
sketch4.addConstraint(Sketcher.Constraint("Coincident", 48, 2, 43, 1))
sketch4.addConstraint(Sketcher.Constraint("Coincident", 49, 2, 50, 1))
sketch4.addConstraint(Sketcher.Constraint("Coincident", 50, 2, 51, 1))
sketch4.addConstraint(Sketcher.Constraint("Coincident", 51, 2, 52, 1))
sketch4.addConstraint(Sketcher.Constraint("Coincident", 52, 2, 53, 1))
sketch4.addConstraint(Sketcher.Constraint("Coincident", 53, 2, 54, 1))
sketch4.addConstraint(Sketcher.Constraint("Coincident", 54, 2, 49, 1))
sketch4.addConstraint(Sketcher.Constraint("Vertical", 0))
sketch4.addConstraint(Sketcher.Constraint("Horizontal", 1))
sketch4.addConstraint(Sketcher.Constraint("Vertical", 2))
sketch4.addConstraint(Sketcher.Constraint("Horizontal", 3))
sketch4.addConstraint(Sketcher.Constraint("Vertical", 12))
sketch4.addConstraint(Sketcher.Constraint("Vertical", 15))
sketch4.addConstraint(Sketcher.Constraint("Horizontal", 23))
sketch4.addConstraint(Sketcher.Constraint("Vertical", 25))
sketch4.addConstraint(Sketcher.Constraint("Horizontal", 27))
sketch4.addConstraint(Sketcher.Constraint("Horizontal", 29))
sketch4.addConstraint(Sketcher.Constraint("Vertical", 31))
sketch4.addConstraint(Sketcher.Constraint("Horizontal", 33))
sketch4.addConstraint(Sketcher.Constraint("Horizontal", 40))
sketch4.addConstraint(Sketcher.Constraint("Vertical", 42))
sketch4.addConstraint(Sketcher.Constraint("Coincident", 41, 3, 32, 3))
sketch4.addConstraint(Sketcher.Constraint("Equal", 22, 24))
sketch4.addConstraint(Sketcher.Constraint("Equal", 24, 26))
sketch4.addConstraint(Sketcher.Constraint("Equal", 26, 28))
sketch4.addConstraint(Sketcher.Constraint("Equal", 28, 30))
sketch4.addConstraint(Sketcher.Constraint("Equal", 30, 32))
sketch4.addConstraint(Sketcher.Constraint("Equal", 32, 41))
sketch4.addConstraint(Sketcher.Constraint("PointOnObject", 40, 2, -1))
sketch4.addConstraint(Sketcher.Constraint("Parallel", 4, 7))
sketch4.addConstraint(Sketcher.Constraint("Parallel", 5, 8))
sketch4.addConstraint(Sketcher.Constraint("Parallel", 6, 9))
sketch4.addConstraint(Sketcher.Constraint("Parallel", 10, 13))
sketch4.addConstraint(Sketcher.Constraint("Parallel", 11, 14))
sketch4.addConstraint(Sketcher.Constraint("Parallel", 16, 19))
sketch4.addConstraint(Sketcher.Constraint("Parallel", 17, 20))
sketch4.addConstraint(Sketcher.Constraint("Parallel", 18, 21))
sketch4.addConstraint(Sketcher.Constraint("Parallel", 34, 37))
sketch4.addConstraint(Sketcher.Constraint("Parallel", 35, 38))
sketch4.addConstraint(Sketcher.Constraint("Parallel", 36, 39))
sketch4.addConstraint(Sketcher.Constraint("Parallel", 43, 46))
sketch4.addConstraint(Sketcher.Constraint("Parallel", 44, 47))
sketch4.addConstraint(Sketcher.Constraint("Parallel", 45, 48))
sketch4.addConstraint(Sketcher.Constraint("Parallel", 49, 52))
sketch4.addConstraint(Sketcher.Constraint("Parallel", 50, 53))
sketch4.addConstraint(Sketcher.Constraint("Parallel", 51, 54))
sketch4.addConstraint(Sketcher.Constraint("Horizontal", 22, 3, 24, 3))
sketch4.addConstraint(Sketcher.Constraint("Horizontal", 26, 3, 28, 3))
sketch4.addConstraint(Sketcher.Constraint("Horizontal", 28, 3, 30, 3))
sketch4.addConstraint(Sketcher.Constraint("Horizontal", 24, 3, 32, 3))
sketch4.addConstraint(Sketcher.Constraint("Horizontal", 12, 2, 14, 2))
sketch4.addConstraint(Sketcher.Constraint("Horizontal", 11, 2, 15, 2))
sketch4.addConstraint(Sketcher.Constraint("Horizontal", 27, 2, 28, 2))
sketch4.addConstraint(Sketcher.Constraint("Horizontal", 25, 2, 30, 2))
sketch4.addConstraint(Sketcher.Constraint("Horizontal", 24, 2, 31, 2))
sketch4.addConstraint(Sketcher.Constraint("Horizontal", 23, 2, 32, 2))
sketch4.addConstraint(Sketcher.Constraint("Vertical", 24, 3, 26, 3))
sketch4.addConstraint(Sketcher.Constraint("Vertical", 22, 3, 28, 3))
sketch4.addConstraint(Sketcher.Constraint("Vertical", 28, 3, 10, 2))
sketch4.addConstraint(Sketcher.Constraint("Vertical", 10, 2, 13, 2))
sketch4.addConstraint(Sketcher.Constraint("Vertical", 23, 2, 26, 2))
sketch4.addConstraint(Sketcher.Constraint("Equal", 27, 29))
sketch4.addConstraint(Sketcher.Constraint("Equal", 40, 42))
sketch4.addConstraint(Sketcher.Constraint("Equal", 4, 5))
sketch4.addConstraint(Sketcher.Constraint("Equal", 5, 6))
sketch4.addConstraint(Sketcher.Constraint("Equal", 6, 7))
sketch4.addConstraint(Sketcher.Constraint("Equal", 9, 10))
sketch4.addConstraint(Sketcher.Constraint("Equal", 14, 16))
sketch4.addConstraint(Sketcher.Constraint("Equal", 16, 17))
sketch4.addConstraint(Sketcher.Constraint("Equal", 17, 18))
sketch4.addConstraint(Sketcher.Constraint("Equal", 18, 19))
sketch4.addConstraint(Sketcher.Constraint("Equal", 21, 34))
sketch4.addConstraint(Sketcher.Constraint("Equal", 34, 35))
sketch4.addConstraint(Sketcher.Constraint("Equal", 35, 36))
sketch4.addConstraint(Sketcher.Constraint("Equal", 36, 37))
sketch4.addConstraint(Sketcher.Constraint("Equal", 39, 43))
sketch4.addConstraint(Sketcher.Constraint("Equal", 43, 44))
sketch4.addConstraint(Sketcher.Constraint("Equal", 44, 45))
sketch4.addConstraint(Sketcher.Constraint("Equal", 45, 46))
sketch4.addConstraint(Sketcher.Constraint("Equal", 48, 49))
sketch4.addConstraint(Sketcher.Constraint("Equal", 49, 50))
sketch4.addConstraint(Sketcher.Constraint("Equal", 50, 51))
sketch4.addConstraint(Sketcher.Constraint("Equal", 51, 52))
sketch4.addConstraint(Sketcher.Constraint("Radius", 22, 5.5))
sketch4.addConstraint(Sketcher.Constraint("DistanceX", 1, 1, 1, 2, 110.0))
sketch4.addConstraint(Sketcher.Constraint("DistanceY", 0, 2, 0, 1, 60.0))
sketch4.addConstraint(Sketcher.Constraint("Angle", 10, Q("30 deg")))
sketch4.addConstraint(Sketcher.Constraint("DistanceX", 22, 3, -1, 1, 50.0))
sketch4.addConstraint(Sketcher.Constraint("DistanceY", 22, 3, -1, 1, 4.0))
sketch4.addConstraint(Sketcher.Constraint("DistanceX", 24, 3, -1, 1, 4.0))
sketch4.addConstraint(Sketcher.Constraint("DistanceY", 26, 3, -1, 1, 46.0))
sketch4.addConstraint(Sketcher.Constraint("DistanceX", 0, 2, -1, 1, 105.0))
sketch4.addConstraint(Sketcher.Constraint("DistanceY", 0, 2, -1, 1, 55.0))
sketch4.addConstraint(Sketcher.Constraint("DistanceY", 22, 2, -1, 1, 5.0))
sketch4.addConstraint(Sketcher.Constraint("DistanceX", 24, 2, -1, 1, 5.0))
sketch4.addConstraint(Sketcher.Constraint("DistanceX", 11, 2, -1, 1, 46.8))
sketch4.addConstraint(Sketcher.Constraint("DistanceY", 12, 2, 12, 1, 3.695042))
sketch4.addConstraint(Sketcher.Constraint("DistanceX", 17, 2, -1, 1, 7.525901))
sketch4.addConstraint(Sketcher.Constraint("DistanceX", 20, 2, -1, 1, 0.474099))
sketch4.addConstraint(Sketcher.Constraint("DistanceY", 5, 2, -1, 1, 42.395888))
sketch4.addConstraint(Sketcher.Constraint("DistanceX", 6, 2, -1, 1, 93.28609))
sketch4.addConstraint(Sketcher.Constraint("DistanceY", 8, 2, -1, 1, 49.604112))
sketch4.addConstraint(Sketcher.Constraint("DistanceX", 9, 2, -1, 1, 98.71391))
sketch4.addConstraint(Sketcher.Constraint("DistanceY", 10, 2, -1, 1, 42.304958))
sketch4.addConstraint(Sketcher.Constraint("DistanceY", 17, 2, -1, 1, 44.894851))
sketch4.addConstraint(Sketcher.Constraint("DistanceY", 20, 2, -1, 1, 47.105149))
sketch4.addConstraint(Sketcher.Constraint("DistanceX", 34, 2, -1, 1, 93.44147))
sketch4.addConstraint(Sketcher.Constraint("DistanceX", 35, 2, -1, 1, 92.41196))
sketch4.addConstraint(Sketcher.Constraint("DistanceY", 35, 2, -1, 1, 4.88278))
sketch4.addConstraint(Sketcher.Constraint("DistanceX", 36, 2, -1, 1, 94.97049))
sketch4.addConstraint(Sketcher.Constraint("DistanceX", 37, 2, -1, 1, 98.55853))
sketch4.addConstraint(Sketcher.Constraint("DistanceX", 43, 2, -1, 1, 46.39139))
sketch4.addConstraint(Sketcher.Constraint("DistanceY", 45, 2, -1, 1, 7.522409))
sketch4.addConstraint(Sketcher.Constraint("DistanceX", 46, 2, -1, 1, 53.60861))
sketch4.addConstraint(Sketcher.Constraint("DistanceY", 48, 2, -1, 1, 0.477591))
sketch4.addConstraint(Sketcher.Constraint("DistanceX", 4, 2, -1, 1, 99.528595))
sketch4.addConstraint(Sketcher.Constraint("DistanceX", 16, 2, -1, 1, 6.720038))
sketch4.addConstraint(Sketcher.Constraint("DistanceY", 43, 2, -1, 1, 3.205477))
sketch4.addConstraint(Sketcher.Constraint("DistanceX", 49, 2, -1, 1, 0.675807))
sketch4.addConstraint(Sketcher.Constraint("DistanceY", 49, 2, -1, 1, 2.386595))
sketch4.addConstraint(Sketcher.Constraint("DistanceX", 50, 2, -1, 1, 0.940654))
sketch4.addConstraint(Sketcher.Constraint("DistanceX", 51, 2, -1, 1, 4.264847))
sketch4.addConstraint(Sketcher.Constraint("DistanceX", 52, 2, -1, 1, 7.324193))
pad4 = body4.newObject("PartDesign::Pad", "Pad003")
pad4.Profile = sketch4
pad4.Length = 3
pad4.Reversed = True

doc.recompute()
